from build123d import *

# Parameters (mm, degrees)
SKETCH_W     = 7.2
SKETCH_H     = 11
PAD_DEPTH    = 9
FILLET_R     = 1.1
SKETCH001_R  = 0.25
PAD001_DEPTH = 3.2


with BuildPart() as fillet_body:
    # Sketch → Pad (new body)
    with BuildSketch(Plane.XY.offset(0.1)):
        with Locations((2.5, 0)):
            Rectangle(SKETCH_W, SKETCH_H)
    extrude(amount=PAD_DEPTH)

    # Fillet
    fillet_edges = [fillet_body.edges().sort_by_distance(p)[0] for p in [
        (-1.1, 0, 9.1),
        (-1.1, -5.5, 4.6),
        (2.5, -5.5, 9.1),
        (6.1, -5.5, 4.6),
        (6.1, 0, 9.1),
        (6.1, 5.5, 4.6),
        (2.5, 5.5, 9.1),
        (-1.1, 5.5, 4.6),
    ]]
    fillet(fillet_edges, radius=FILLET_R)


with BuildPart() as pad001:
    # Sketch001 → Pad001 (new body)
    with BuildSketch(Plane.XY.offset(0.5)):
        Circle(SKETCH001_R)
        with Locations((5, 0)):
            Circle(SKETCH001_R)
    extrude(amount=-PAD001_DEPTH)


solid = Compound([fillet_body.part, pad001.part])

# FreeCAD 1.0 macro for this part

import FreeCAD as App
import Part
import Sketcher
from FreeCAD import Vector


def edges_at(feature, points):
    """Names of the edges that pass closest to the given points."""
    edges = feature.Shape.Edges
    near = lambda p: min(range(len(edges)), key=lambda i: edges[i].distToShape(Part.Vertex(*p))[0])
    return sorted({f"Edge{near(p) + 1}" for p in points})


def add_polygon(sketch, points):
    """Adds a closed chain of lines whose ends are joined by coincident constraints."""
    first, n = sketch.GeometryCount, len(points)
    for a, b in zip(points, points[1:] + points[:1]):
        sketch.addGeometry(Part.LineSegment(App.Vector(*a, 0), App.Vector(*b, 0)), False)
    for i in range(n):
        sketch.addConstraint(Sketcher.Constraint("Coincident", first + i, 2, first + (i + 1) % n, 1))

doc = App.newDocument("Part")
body = doc.addObject("PartDesign::Body", "Body")

# Sketch on XY plane
sketch1 = body.newObject("Sketcher::SketchObject", "Sketch")
sketch1.AttachmentSupport = (doc.getObject("XY_Plane"), [""])
sketch1.MapMode = "FlatFace"
sketch1.AttachmentOffset = App.Placement(Vector(0, 0, 0.1), App.Rotation())
add_polygon(sketch1, [(-1, 6), (-1, -6), (6, -6), (6, 6)])  # lines 0-3
sketch1.addConstraint([
    Sketcher.Constraint("Vertical", 0),
    Sketcher.Constraint("Horizontal", 1),
    Sketcher.Constraint("Vertical", 2),
    Sketcher.Constraint("Horizontal", 3),
    Sketcher.Constraint("DistanceY", 0, 2, 0, 1, 11.0),
    Sketcher.Constraint("DistanceX", 1, 1, 1, 2, 7.2),
    Sketcher.Constraint("DistanceX", 0, 2, -1, 1, 1.1),
    Sketcher.Constraint("DistanceY", 0, 2, -1, 1, 5.5),
])
pad1 = body.newObject("PartDesign::Pad", "Pad")
pad1.Profile = sketch1
pad1.Length = 9
doc.recompute()

fillet = body.newObject("PartDesign::Fillet", "Fillet")
fillet.Base = (pad1, edges_at(pad1, [
    (-1.1, 0, 9.1),
    (-1.1, -5.5, 4.6),
    (2.5, -5.5, 9.1),
    (6.1, -5.5, 4.6),
    (6.1, 0, 9.1),
    (6.1, 5.5, 4.6),
    (2.5, 5.5, 9.1),
    (-1.1, 5.5, 4.6),
]))
fillet.Radius = 1.1
body2 = doc.addObject("PartDesign::Body", "Body001")
body2.AllowCompound = True

# Sketch on XY plane
sketch2 = body2.newObject("Sketcher::SketchObject", "Sketch001")
sketch2.AttachmentSupport = (doc.getObject("XY_Plane001"), [""])
sketch2.MapMode = "FlatFace"
sketch2.AttachmentOffset = App.Placement(Vector(0, 0, 0.5), App.Rotation())
sketch2.addGeometry([
    Part.Circle(Vector(0, 0, 0), Vector(0, 0, 1), 0.25),
    Part.Circle(Vector(5, 0, 0), Vector(0, 0, 1), 0.25),
], False)
sketch2.addConstraint([
    Sketcher.Constraint("Coincident", 0, 3, -1, 1),
    Sketcher.Constraint("Equal", 0, 1),
    Sketcher.Constraint("PointOnObject", 1, 3, -1),
    Sketcher.Constraint("Diameter", 0, 0.5),
    Sketcher.Constraint("DistanceX", -1, 1, 1, 3, 5.0),
])
pad2 = body2.newObject("PartDesign::Pad", "Pad001")
pad2.Profile = sketch2
pad2.Length = 3.2
pad2.Reversed = True

doc.recompute()
